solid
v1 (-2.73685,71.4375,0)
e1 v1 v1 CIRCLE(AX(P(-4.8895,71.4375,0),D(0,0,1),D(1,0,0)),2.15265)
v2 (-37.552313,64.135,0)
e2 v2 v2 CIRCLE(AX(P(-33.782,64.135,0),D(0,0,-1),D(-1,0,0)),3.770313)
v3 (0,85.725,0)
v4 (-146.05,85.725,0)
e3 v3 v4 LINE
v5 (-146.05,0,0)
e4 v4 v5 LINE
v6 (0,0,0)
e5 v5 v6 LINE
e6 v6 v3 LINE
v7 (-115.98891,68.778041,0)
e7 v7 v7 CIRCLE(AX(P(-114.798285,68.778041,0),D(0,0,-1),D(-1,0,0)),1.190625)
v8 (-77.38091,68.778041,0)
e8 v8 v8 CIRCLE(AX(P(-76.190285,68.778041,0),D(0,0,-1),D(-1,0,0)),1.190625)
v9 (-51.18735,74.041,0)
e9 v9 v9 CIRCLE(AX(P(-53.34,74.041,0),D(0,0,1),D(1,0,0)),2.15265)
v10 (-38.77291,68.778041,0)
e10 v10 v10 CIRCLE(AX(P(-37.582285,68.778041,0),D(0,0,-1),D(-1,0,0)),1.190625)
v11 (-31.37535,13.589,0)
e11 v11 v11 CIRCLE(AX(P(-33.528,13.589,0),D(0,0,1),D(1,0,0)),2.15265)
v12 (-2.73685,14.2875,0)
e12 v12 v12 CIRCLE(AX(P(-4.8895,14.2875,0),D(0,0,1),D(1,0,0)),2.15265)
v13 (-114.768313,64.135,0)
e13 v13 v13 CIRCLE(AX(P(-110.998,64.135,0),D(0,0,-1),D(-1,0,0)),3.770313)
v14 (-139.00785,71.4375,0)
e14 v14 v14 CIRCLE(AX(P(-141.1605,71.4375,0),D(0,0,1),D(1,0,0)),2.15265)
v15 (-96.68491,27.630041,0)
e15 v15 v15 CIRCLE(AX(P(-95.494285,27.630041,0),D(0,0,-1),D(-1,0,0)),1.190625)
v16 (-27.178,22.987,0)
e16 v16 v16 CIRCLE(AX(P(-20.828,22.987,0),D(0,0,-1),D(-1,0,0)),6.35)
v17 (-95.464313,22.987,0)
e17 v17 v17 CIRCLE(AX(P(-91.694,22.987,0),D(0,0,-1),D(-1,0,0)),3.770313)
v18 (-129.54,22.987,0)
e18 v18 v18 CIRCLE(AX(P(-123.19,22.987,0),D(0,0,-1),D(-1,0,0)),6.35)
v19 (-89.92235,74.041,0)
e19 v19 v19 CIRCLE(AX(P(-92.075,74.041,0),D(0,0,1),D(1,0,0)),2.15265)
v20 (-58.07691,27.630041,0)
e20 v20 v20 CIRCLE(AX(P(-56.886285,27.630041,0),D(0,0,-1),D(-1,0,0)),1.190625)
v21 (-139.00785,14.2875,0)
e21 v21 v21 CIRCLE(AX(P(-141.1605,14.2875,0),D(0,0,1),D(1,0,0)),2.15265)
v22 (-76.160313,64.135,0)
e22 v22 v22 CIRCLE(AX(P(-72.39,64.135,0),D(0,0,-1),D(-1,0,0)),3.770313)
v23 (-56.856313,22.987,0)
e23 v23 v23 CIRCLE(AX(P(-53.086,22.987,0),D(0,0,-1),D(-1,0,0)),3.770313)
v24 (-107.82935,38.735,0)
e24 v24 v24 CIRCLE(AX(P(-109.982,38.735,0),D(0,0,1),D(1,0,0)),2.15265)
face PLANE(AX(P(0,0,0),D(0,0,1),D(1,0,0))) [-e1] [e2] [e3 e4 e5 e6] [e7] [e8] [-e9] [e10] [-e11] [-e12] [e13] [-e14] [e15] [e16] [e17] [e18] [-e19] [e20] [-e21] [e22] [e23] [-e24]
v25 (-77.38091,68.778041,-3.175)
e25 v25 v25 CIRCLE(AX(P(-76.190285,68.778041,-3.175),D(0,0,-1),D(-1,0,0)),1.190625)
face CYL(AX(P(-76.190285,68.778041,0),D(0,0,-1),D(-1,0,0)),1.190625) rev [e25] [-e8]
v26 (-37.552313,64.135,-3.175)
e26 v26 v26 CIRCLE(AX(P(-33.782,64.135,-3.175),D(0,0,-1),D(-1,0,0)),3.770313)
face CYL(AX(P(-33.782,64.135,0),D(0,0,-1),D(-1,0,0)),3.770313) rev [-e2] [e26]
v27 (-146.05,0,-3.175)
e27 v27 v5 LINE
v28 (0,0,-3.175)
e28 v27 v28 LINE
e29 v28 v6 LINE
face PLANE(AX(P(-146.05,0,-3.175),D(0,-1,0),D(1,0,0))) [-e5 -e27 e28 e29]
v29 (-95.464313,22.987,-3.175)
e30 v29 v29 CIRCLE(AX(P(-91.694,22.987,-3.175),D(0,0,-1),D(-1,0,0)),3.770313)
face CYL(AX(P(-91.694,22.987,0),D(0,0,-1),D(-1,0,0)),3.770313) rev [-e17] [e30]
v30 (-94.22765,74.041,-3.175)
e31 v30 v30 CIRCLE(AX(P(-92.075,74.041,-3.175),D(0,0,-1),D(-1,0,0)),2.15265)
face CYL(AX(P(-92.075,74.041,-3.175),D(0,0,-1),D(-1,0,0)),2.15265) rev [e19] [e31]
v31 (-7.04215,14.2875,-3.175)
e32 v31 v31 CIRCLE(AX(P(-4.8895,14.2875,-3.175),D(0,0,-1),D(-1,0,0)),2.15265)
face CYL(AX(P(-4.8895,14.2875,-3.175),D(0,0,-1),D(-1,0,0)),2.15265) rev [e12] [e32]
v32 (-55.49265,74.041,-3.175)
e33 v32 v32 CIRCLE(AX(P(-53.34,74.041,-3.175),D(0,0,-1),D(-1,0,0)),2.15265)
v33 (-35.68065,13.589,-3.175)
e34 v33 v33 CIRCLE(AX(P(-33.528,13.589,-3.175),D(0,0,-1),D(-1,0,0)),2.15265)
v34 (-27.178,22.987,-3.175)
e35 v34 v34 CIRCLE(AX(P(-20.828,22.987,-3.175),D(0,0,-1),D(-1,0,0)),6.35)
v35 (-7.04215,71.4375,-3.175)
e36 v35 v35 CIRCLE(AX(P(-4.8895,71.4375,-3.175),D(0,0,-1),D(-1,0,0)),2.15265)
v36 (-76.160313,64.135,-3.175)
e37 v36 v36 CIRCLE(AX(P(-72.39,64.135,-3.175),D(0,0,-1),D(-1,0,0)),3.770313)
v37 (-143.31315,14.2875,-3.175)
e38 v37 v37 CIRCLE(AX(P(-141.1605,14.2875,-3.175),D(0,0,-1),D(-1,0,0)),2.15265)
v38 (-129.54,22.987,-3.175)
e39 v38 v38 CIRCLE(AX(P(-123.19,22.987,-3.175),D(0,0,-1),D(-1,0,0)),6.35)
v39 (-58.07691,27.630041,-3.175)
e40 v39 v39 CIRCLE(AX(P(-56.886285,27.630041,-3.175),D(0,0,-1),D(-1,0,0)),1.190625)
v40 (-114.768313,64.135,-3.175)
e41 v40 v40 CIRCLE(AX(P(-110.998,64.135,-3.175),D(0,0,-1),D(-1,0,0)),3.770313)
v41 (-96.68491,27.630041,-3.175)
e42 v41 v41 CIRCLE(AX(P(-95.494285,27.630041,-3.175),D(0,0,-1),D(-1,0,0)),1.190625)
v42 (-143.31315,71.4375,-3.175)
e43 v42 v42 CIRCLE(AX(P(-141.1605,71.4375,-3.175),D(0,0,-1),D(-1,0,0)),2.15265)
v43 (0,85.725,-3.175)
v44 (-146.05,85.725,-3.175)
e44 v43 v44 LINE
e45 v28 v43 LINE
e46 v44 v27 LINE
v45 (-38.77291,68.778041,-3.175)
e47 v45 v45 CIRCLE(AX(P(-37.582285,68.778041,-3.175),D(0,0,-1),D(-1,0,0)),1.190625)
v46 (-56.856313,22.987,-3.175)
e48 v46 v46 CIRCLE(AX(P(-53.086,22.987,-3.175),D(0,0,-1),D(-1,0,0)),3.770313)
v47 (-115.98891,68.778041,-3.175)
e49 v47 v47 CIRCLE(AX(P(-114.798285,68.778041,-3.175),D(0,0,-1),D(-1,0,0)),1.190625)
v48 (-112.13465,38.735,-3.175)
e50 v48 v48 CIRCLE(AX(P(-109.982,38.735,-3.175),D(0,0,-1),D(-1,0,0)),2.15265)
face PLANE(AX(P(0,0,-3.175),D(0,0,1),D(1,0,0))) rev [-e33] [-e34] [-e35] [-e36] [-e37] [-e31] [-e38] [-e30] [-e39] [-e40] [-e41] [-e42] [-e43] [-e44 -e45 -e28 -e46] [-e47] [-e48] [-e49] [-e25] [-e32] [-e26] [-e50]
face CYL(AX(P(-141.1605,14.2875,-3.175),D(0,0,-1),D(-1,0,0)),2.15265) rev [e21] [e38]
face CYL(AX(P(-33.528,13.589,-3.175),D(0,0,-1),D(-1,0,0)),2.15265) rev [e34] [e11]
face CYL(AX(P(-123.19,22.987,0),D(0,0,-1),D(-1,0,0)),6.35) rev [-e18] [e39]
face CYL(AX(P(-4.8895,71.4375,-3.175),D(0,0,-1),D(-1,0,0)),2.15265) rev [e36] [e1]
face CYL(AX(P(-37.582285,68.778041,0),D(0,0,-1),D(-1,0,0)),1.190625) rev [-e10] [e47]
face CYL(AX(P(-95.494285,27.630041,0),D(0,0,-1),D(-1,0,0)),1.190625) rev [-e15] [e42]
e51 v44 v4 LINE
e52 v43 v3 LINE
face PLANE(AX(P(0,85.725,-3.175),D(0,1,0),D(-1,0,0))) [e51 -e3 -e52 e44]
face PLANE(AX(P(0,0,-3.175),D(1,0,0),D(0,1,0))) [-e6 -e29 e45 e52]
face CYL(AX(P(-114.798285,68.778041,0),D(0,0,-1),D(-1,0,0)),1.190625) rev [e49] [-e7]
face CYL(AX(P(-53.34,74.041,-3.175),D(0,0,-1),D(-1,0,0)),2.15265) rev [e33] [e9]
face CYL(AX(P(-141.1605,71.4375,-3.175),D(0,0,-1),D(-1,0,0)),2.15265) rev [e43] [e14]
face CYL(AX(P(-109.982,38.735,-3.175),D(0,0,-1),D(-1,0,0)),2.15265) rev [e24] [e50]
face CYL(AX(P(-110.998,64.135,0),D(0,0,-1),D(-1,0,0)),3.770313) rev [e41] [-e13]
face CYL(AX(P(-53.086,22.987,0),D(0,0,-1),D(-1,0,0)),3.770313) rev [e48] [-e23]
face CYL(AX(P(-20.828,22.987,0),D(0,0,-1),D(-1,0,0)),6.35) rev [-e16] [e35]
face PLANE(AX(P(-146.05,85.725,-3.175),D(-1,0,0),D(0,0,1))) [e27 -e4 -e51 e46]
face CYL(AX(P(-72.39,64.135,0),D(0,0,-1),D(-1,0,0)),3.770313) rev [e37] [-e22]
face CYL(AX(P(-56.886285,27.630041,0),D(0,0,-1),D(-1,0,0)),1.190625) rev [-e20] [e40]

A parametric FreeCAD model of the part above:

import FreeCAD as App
import Part
import Sketcher

V = App.Vector
Q = App.Units.Quantity


def add_polygon(sketch, points):
    """Adds a closed chain of lines whose ends are joined by coincident constraints."""
    first, n = sketch.GeometryCount, len(points)
    for a, b in zip(points, points[1:] + points[:1]):
        sketch.addGeometry(Part.LineSegment(App.Vector(*a, 0), App.Vector(*b, 0)), False)
    for i in range(n):
        sketch.addConstraint(Sketcher.Constraint("Coincident", first + i, 2, first + (i + 1) % n, 1))

doc = App.newDocument("Part")
params = doc.addObject("Spreadsheet::Sheet", "Params")
for row, (alias, value) in enumerate([
    ("sketch1_width", "5.75 in"),
    ("sketch1_height", "3.375 in"),
    ("pad1_length", "0.125 in"),
    ("hole_diameter", "0.1695 in"),
    ("hole_depth", "0.5 in"),
    ("sketch3_diameter", "0.5 in"),
    ("sketch3_diameter2", "0.296875 in"),
    ("sketch3_diameter3", "0.09375 in"),
], start=1):
    params.set(f"A{row}", alias)
    params.set(f"B{row}", "=" + value)
    params.setAlias(f"B{row}", alias)

body = doc.addObject("PartDesign::Body", "Body")

sketch1 = body.newObject("Sketcher::SketchObject", "Sketch")
sketch1.AttachmentSupport = (doc.getObject("XY_Plane"), [""])
sketch1.MapMode = "FlatFace"
add_polygon(sketch1, [(-146, 86), (-146, 0), (0, 0), (0, 86)])
sketch1.addConstraint([
    Sketcher.Constraint("Vertical", 0),
    Sketcher.Constraint("Horizontal", 1),
    Sketcher.Constraint("Vertical", 2),
    Sketcher.Constraint("Horizontal", 3),
    Sketcher.Constraint("Coincident", 1, 2, -1, 1),
    Sketcher.Constraint("DistanceX", 1, 1, 1, 2, Q("5.75 in")),
    Sketcher.Constraint("DistanceY", 0, 2, 0, 1, Q("3.375 in")),
])
sketch1.setExpression("Constraints[9]", "Params.sketch1_width")
sketch1.setExpression("Constraints[10]", "Params.sketch1_height")
pad1 = body.newObject("PartDesign::Pad", "Pad")
pad1.Profile = sketch1
pad1.setExpression("Length", "Params.pad1_length")
pad1.Reversed = True

sketch2 = body.newObject("Sketcher::SketchObject", "Sketch001")
sketch2.AttachmentSupport = (doc.getObject("XY_Plane"), [""])
sketch2.MapMode = "FlatFace"
sketch2.AttachmentOffset = App.Placement(V(0, 0, -0.125 * 25.4), App.Rotation())
sketch2.addGeometry([
    Part.Circle(V(-4.9, 71.4, 0), V(0, 0, 1), 2.2),
    Part.Circle(V(-53.3, 74, 0), V(0, 0, 1), 2.2),
    Part.Circle(V(-92.1, 74, 0), V(0, 0, 1), 2.2),
    Part.Circle(V(-141.2, 71.4, 0), V(0, 0, 1), 2.2),
    Part.Circle(V(-110, 38.7, 0), V(0, 0, 1), 2.2),
    Part.Circle(V(-141.2, 14.3, 0), V(0, 0, 1), 2.2),
    Part.Circle(V(-33.5, 13.6, 0), V(0, 0, 1), 2.2),
    Part.Circle(V(-4.9, 14.3, 0), V(0, 0, 1), 2.2),
], False)
sketch2.addConstraint([
    Sketcher.Constraint("Equal", 0, 1),
    Sketcher.Constraint("Equal", 1, 2),
    Sketcher.Constraint("Equal", 2, 3),
    Sketcher.Constraint("Equal", 3, 4),
    Sketcher.Constraint("Equal", 4, 5),
    Sketcher.Constraint("Equal", 5, 6),
    Sketcher.Constraint("Equal", 6, 7),
    Sketcher.Constraint("Horizontal", 1, 3, 2, 3),
    Sketcher.Constraint("Horizontal", 0, 3, 3, 3),
    Sketcher.Constraint("Horizontal", 5, 3, 7, 3),
    Sketcher.Constraint("Vertical", 3, 3, 5, 3),
    Sketcher.Constraint("Vertical", 0, 3, 7, 3),
    Sketcher.Constraint("Diameter", 0, Q("0.1695 in")),
    Sketcher.Constraint("DistanceX", 1, 3, -1, 1, Q("2.1 in")),
    Sketcher.Constraint("DistanceX", 4, 3, -1, 1, Q("4.33 in")),
    Sketcher.Constraint("DistanceX", 6, 3, -1, 1, Q("1.32 in")),
    Sketcher.Constraint("DistanceY", 4, 3, 2, 3, Q("1.39 in")),
    Sketcher.Constraint("DistanceY", 5, 3, 3, 3, Q("2.25 in")),
    Sketcher.Constraint("DistanceY", 6, 3, 1, 3, Q("2.38 in")),
    Sketcher.Constraint("DistanceY", -1, 1, 0, 3, Q("2.8125 in")),
    Sketcher.Constraint("DistanceY", -1, 1, 1, 3, Q("2.915 in")),
    Sketcher.Constraint("DistanceX", 2, 3, -1, 1, Q("3.625 in")),
    Sketcher.Constraint("DistanceX", 3, 3, 0, 3, Q("5.365 in")),
    Sketcher.Constraint("DistanceX", 0, 3, -1, 1, Q("0.1925 in")),
])
doc.recompute()
hole = body.newObject("PartDesign::Hole", "Hole")
hole.Profile = sketch2
hole.ThreadType = "None"
hole.setExpression("Diameter", "Params.hole_diameter")
hole.DepthType = "Dimension"
hole.setExpression("Depth", "Params.hole_depth")
hole.DrillPoint = "Angled"
hole.DrillPointAngle = 118
hole.Reversed = True

sketch3 = body.newObject("Sketcher::SketchObject", "Sketch002")
sketch3.AttachmentSupport = (doc.getObject("XY_Plane"), [""])
sketch3.MapMode = "FlatFace"
sketch3.AttachmentOffset = App.Placement(V(0, 0, -0.125 * 25.4), App.Rotation())
sketch3.addGeometry([
    Part.Circle(V(-20.8, 23, 0), V(0, 0, 1), 6.3),
    Part.Circle(V(-123.2, 23, 0), V(0, 0, 1), 6.3),
    Part.Circle(V(-33.8, 64.1, 0), V(0, 0, 1), 3.8),
    Part.Circle(V(-72.4, 64.1, 0), V(0, 0, 1), 3.8),
    Part.Circle(V(-111, 64.1, 0), V(0, 0, 1), 3.8),
    Part.Circle(V(-91.7, 23, 0), V(0, 0, 1), 3.8),
    Part.Circle(V(-53.1, 23, 0), V(0, 0, 1), 3.8),
    Part.Circle(V(-37.6, 68.8, 0), V(0, 0, 1), 1.2),
    Part.Circle(V(-76.2, 68.8, 0), V(0, 0, 1), 1.2),
    Part.Circle(V(-114.8, 68.8, 0), V(0, 0, 1), 1.2),
    Part.Circle(V(-56.9, 27.6, 0), V(0, 0, 1), 1.2),
    Part.Circle(V(-95.5, 27.6, 0), V(0, 0, 1), 1.2),
], False)
sketch3.addConstraint([
    Sketcher.Constraint("Equal", 0, 1),
    Sketcher.Constraint("Equal", 2, 3),
    Sketcher.Constraint("Equal", 3, 4),
    Sketcher.Constraint("Equal", 4, 5),
    Sketcher.Constraint("Equal", 5, 6),
    Sketcher.Constraint("Equal", 7, 8),
    Sketcher.Constraint("Equal", 8, 9),
    Sketcher.Constraint("Equal", 9, 10),
    Sketcher.Constraint("Equal", 10, 11),
    Sketcher.Constraint("Horizontal", 0, 3, 1, 3),
    Sketcher.Constraint("Horizontal", 2, 3, 3, 3),
    Sketcher.Constraint("Horizontal", 3, 3, 4, 3),
    Sketcher.Constraint("Horizontal", 1, 3, 5, 3),
    Sketcher.Constraint("Horizontal", 5, 3, 6, 3),
    Sketcher.Constraint("Horizontal", 7, 3, 8, 3),
    Sketcher.Constraint("Horizontal", 8, 3, 9, 3),
    Sketcher.Constraint("Horizontal", 10, 3, 11, 3),
    Sketcher.Constraint("Diameter", 0, Q("0.5 in")),
    Sketcher.Constraint("Diameter", 2, Q("0.296875 in")),
    Sketcher.Constraint("Diameter", 7, Q("0.09375 in")),
    Sketcher.Constraint("DistanceX", 1, 3, 3, 3, Q("2 in")),
    Sketcher.Constraint("DistanceX", 0, 3, -1, 1, Q("0.82 in")),
    Sketcher.Constraint("DistanceX", 1, 3, -1, 1, Q("4.85 in")),
    Sketcher.Constraint("DistanceX", 2, 3, -1, 1, Q("1.33 in")),
    Sketcher.Constraint("DistanceX", 4, 3, -1, 1, Q("4.37 in")),
    Sketcher.Constraint("DistanceX", 5, 3, -1, 1, Q("3.61 in")),
    Sketcher.Constraint("DistanceX", 6, 3, -1, 1, Q("2.09 in")),
    Sketcher.Constraint("DistanceY", 0, 3, 2, 3, Q("1.62 in")),
    Sketcher.Constraint("DistanceX", 8, 3, 7, 3, Q("1.52 in")),
    Sketcher.Constraint("DistanceX", 9, 3, 8, 3, Q("1.52 in")),
    Sketcher.Constraint("DistanceX", 11, 3, 10, 3, Q("1.52 in")),
    Sketcher.Constraint("DistanceY", -1, 1, 0, 3, Q("0.905 in")),
    Sketcher.Constraint("DistanceY", -1, 1, 7, 3, 68.778041),
    Sketcher.Constraint("DistanceY", -1, 1, 10, 3, 27.630041),
    Sketcher.Constraint("DistanceX", 7, 3, -1, 1, 37.582285),
    Sketcher.Constraint("DistanceX", 10, 3, -1, 1, 56.886285),
])
sketch3.setExpression("Constraints[17]", "Params.sketch3_diameter")
sketch3.setExpression("Constraints[18]", "Params.sketch3_diameter2")
sketch3.setExpression("Constraints[19]", "Params.sketch3_diameter3")
pocket1 = body.newObject("PartDesign::Pocket", "Pocket")
pocket1.Profile = sketch3
pocket1.Type = "ThroughAll"
pocket1.Reversed = True

doc.recompute()
